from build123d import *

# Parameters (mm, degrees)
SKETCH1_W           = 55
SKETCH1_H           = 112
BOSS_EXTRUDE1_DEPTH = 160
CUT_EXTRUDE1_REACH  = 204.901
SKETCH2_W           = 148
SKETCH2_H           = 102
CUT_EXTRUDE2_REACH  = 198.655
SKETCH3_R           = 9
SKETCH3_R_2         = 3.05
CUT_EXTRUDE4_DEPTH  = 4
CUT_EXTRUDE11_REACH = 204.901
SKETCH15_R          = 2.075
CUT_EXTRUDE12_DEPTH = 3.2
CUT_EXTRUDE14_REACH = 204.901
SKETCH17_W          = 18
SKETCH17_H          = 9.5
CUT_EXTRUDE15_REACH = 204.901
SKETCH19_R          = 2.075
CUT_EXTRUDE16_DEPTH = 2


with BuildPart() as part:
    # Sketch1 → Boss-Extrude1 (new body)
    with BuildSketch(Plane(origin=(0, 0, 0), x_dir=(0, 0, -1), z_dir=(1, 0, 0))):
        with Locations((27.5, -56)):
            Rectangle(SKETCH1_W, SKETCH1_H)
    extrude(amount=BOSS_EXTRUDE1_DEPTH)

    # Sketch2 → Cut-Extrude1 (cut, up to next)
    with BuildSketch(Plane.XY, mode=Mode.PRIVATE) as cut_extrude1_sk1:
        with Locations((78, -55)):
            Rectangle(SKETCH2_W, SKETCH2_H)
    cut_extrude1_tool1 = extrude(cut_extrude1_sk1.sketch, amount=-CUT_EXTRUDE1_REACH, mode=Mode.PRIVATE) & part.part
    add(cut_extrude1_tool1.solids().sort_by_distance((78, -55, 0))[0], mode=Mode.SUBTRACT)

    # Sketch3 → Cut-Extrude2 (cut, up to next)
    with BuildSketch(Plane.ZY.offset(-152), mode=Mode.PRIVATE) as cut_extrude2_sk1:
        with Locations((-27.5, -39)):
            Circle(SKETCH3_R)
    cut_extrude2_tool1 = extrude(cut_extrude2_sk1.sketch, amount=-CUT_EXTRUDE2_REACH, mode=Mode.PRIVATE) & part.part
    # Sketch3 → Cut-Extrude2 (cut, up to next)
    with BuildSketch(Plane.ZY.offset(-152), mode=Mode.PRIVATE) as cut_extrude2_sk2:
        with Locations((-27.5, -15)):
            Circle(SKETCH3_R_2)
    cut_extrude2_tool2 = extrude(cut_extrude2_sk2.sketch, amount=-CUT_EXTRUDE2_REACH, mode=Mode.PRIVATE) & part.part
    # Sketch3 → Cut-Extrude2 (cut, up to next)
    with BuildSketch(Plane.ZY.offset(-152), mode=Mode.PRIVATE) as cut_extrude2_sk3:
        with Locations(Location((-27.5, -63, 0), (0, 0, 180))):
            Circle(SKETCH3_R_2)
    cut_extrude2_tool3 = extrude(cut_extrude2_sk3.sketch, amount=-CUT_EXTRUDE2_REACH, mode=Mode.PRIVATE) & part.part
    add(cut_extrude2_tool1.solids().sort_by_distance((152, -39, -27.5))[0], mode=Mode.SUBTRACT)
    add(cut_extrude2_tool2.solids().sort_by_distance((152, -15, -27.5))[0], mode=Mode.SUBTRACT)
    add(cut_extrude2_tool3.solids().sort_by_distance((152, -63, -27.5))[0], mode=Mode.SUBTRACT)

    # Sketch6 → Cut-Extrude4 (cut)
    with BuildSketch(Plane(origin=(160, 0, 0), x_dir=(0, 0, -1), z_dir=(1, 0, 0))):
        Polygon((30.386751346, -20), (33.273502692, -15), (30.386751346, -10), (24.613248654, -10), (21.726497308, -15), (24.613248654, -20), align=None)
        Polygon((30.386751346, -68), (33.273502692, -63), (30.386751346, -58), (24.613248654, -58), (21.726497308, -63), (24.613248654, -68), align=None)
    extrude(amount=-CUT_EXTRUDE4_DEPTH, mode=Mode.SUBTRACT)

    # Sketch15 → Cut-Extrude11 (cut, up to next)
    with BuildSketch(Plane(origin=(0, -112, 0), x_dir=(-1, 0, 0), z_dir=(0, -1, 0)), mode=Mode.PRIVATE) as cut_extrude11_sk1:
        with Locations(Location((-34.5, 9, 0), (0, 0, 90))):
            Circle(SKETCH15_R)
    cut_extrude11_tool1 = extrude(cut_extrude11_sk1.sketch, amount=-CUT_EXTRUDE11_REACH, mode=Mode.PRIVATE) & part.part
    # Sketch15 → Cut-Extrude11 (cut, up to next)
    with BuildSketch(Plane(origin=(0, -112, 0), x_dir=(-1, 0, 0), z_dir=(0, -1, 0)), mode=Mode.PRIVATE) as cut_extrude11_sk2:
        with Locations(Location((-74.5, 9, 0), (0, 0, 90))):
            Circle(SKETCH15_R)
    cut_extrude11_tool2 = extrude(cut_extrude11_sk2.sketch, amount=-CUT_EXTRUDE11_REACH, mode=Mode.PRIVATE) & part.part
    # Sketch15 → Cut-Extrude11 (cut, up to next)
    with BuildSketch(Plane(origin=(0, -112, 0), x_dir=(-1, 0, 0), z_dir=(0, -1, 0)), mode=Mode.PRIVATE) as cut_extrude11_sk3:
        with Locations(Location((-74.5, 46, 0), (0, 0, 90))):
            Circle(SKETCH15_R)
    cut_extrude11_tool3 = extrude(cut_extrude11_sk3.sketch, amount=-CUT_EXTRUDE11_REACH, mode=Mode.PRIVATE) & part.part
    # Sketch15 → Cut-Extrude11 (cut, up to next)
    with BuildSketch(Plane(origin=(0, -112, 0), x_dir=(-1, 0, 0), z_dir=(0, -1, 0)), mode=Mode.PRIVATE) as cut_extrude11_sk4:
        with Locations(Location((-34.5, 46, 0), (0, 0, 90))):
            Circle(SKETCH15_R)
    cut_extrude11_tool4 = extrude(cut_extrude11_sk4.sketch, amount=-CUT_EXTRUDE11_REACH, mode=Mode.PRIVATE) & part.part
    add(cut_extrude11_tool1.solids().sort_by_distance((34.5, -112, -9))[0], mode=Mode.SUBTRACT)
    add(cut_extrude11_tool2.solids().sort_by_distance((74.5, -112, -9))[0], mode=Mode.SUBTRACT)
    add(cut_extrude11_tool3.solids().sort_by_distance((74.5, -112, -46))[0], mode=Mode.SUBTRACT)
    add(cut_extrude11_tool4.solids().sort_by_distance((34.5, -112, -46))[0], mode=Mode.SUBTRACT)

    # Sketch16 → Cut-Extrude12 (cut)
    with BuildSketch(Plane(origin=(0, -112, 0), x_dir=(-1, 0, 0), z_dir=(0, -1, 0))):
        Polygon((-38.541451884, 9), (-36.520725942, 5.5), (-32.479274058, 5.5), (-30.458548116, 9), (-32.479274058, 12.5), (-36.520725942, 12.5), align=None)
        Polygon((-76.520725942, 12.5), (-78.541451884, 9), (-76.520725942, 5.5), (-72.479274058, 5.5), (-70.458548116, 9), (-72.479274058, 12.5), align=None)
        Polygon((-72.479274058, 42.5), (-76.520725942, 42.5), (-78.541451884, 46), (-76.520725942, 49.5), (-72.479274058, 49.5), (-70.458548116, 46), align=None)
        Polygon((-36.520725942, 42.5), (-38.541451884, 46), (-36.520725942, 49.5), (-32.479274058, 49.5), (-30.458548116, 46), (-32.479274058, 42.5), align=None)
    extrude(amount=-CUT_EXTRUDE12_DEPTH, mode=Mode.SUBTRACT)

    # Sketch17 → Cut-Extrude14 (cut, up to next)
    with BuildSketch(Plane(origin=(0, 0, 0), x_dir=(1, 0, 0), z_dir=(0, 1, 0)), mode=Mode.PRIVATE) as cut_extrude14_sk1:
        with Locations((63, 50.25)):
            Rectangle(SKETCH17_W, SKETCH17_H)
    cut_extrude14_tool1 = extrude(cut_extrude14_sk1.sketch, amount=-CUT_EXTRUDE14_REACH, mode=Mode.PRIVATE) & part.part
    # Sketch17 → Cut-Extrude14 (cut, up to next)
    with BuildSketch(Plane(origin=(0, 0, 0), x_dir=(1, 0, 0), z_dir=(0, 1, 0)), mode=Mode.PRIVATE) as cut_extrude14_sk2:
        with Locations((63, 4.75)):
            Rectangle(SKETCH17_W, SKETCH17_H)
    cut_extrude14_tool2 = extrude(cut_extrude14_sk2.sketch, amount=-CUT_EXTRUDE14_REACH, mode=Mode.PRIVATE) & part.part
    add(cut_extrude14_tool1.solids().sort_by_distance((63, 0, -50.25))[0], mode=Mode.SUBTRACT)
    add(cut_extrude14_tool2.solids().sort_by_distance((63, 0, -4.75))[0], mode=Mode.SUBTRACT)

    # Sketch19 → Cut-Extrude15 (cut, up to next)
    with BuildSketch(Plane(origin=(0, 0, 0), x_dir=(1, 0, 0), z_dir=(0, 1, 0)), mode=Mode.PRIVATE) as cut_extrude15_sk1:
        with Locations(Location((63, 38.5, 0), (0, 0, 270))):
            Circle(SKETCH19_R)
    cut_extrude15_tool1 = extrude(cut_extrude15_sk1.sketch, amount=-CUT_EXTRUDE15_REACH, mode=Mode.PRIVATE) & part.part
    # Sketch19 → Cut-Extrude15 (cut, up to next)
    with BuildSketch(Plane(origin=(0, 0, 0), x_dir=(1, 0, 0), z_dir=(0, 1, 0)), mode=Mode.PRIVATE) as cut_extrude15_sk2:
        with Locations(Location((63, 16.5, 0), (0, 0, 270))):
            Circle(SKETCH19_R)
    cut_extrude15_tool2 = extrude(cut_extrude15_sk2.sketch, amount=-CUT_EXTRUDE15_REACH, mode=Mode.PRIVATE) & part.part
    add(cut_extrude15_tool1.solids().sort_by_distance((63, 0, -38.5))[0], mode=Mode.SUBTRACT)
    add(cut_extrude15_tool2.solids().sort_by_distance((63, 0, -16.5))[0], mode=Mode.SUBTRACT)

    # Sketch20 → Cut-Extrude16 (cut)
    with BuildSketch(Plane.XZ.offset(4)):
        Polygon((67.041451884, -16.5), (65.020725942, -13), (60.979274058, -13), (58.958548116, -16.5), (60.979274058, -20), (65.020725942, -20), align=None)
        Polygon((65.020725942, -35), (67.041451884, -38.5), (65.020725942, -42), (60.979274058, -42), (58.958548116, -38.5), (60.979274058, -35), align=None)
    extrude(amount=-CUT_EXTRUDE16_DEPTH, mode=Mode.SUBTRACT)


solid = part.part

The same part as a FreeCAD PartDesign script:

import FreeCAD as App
import Part
import Sketcher

V = App.Vector
Q = App.Units.Quantity


def add_polygon(sketch, points):
    """Adds a closed chain of lines whose ends are joined by coincident constraints."""
    first, n = sketch.GeometryCount, len(points)
    for a, b in zip(points, points[1:] + points[:1]):
        sketch.addGeometry(Part.LineSegment(App.Vector(*a, 0), App.Vector(*b, 0)), False)
    for i in range(n):
        sketch.addConstraint(Sketcher.Constraint("Coincident", first + i, 2, first + (i + 1) % n, 1))

doc = App.newDocument("Part")
params = doc.addObject("Spreadsheet::Sheet", "Params")
for row, (alias, value) in enumerate([
    ("sketch1_width", "112 mm"),
    ("sketch1_height", "55 mm"),
    ("pad1_length", "160 mm"),
    ("sketch2_width", "148 mm"),
    ("sketch2_height", "102 mm"),
    ("sketch3_diameter", "18 mm"),
    ("sketch4_diameter", "6.1 mm"),
    ("sketch5_diameter", "6.1 mm"),
    ("pocket5_length", "4 mm"),
    ("sketch7_diameter", "4.15 mm"),
    ("sketch8_diameter", "4.15 mm"),
    ("sketch9_diameter", "4.15 mm"),
    ("sketch10_diameter", "4.15 mm"),
    ("pocket10_length", "3.2 mm"),
    ("sketch12_width", "18 mm"),
    ("sketch12_height", "9.5 mm"),
    ("sketch13_width", "18 mm"),
    ("sketch13_height", "9.5 mm"),
    ("sketch14_diameter", "4.15 mm"),
    ("sketch15_diameter", "4.15 mm"),
    ("pocket15_length", "2 mm"),
], start=1):
    params.set(f"A{row}", alias)
    params.set(f"B{row}", "=" + value)
    params.setAlias(f"B{row}", alias)

body = doc.addObject("PartDesign::Body", "Body")

sketch1 = body.newObject("Sketcher::SketchObject", "Sketch")
sketch1.AttachmentSupport = (doc.getObject("YZ_Plane"), [""])
sketch1.MapMode = "FlatFace"
add_polygon(sketch1, [(0, 0), (-112, 0), (-112, -55), (0, -55)])
sketch1.addConstraint([
    Sketcher.Constraint("Horizontal", 0),
    Sketcher.Constraint("Vertical", 1),
    Sketcher.Constraint("Horizontal", 2),
    Sketcher.Constraint("Vertical", 3),
    Sketcher.Constraint("Coincident", 3, 2, -1, 1),
    Sketcher.Constraint("DistanceX", 0, 2, 0, 1, Q("112 mm")),
    Sketcher.Constraint("DistanceY", 1, 2, 1, 1, Q("55 mm")),
])
sketch1.setExpression("Constraints[9]", "Params.sketch1_width")
sketch1.setExpression("Constraints[10]", "Params.sketch1_height")
pad1 = body.newObject("PartDesign::Pad", "Pad")
pad1.Profile = sketch1
pad1.setExpression("Length", "Params.pad1_length")

sketch2 = body.newObject("Sketcher::SketchObject", "Sketch001")
sketch2.AttachmentSupport = (doc.getObject("XY_Plane"), [""])
sketch2.MapMode = "FlatFace"
add_polygon(sketch2, [(4, -4), (4, -106), (152, -106), (152, -4)])
sketch2.addConstraint([
    Sketcher.Constraint("Vertical", 0),
    Sketcher.Constraint("Horizontal", 1),
    Sketcher.Constraint("Vertical", 2),
    Sketcher.Constraint("Horizontal", 3),
    Sketcher.Constraint("DistanceX", 1, 1, 1, 2, Q("148 mm")),
    Sketcher.Constraint("DistanceY", 0, 2, 0, 1, Q("102 mm")),
    Sketcher.Constraint("DistanceX", -1, 1, 0, 2, Q("4 mm")),
    Sketcher.Constraint("DistanceY", 0, 2, -1, 1, Q("106 mm")),
])
sketch2.setExpression("Constraints[8]", "Params.sketch2_width")
sketch2.setExpression("Constraints[9]", "Params.sketch2_height")
pocket1 = body.newObject("PartDesign::Pocket", "Pocket")
pocket1.Profile = sketch2
pocket1.Type = "UpToFirst"

sketch3 = body.newObject("Sketcher::SketchObject", "Sketch002")
sketch3.AttachmentSupport = (doc.getObject("YZ_Plane"), [""])
sketch3.MapMode = "FlatFace"
sketch3.AttachmentOffset = App.Placement(V(0, 0, 152), App.Rotation())
sketch3.addGeometry(Part.Circle(V(-39, -28, 0), V(0, 0, 1), 9), False)
sketch3.addConstraint([
    Sketcher.Constraint("Diameter", 0, Q("18 mm")),
    Sketcher.Constraint("DistanceX", 0, 3, -1, 1, Q("39 mm")),
    Sketcher.Constraint("DistanceY", 0, 3, -1, 1, Q("27.5 mm")),
])
sketch3.setExpression("Constraints[0]", "Params.sketch3_diameter")
pocket2 = body.newObject("PartDesign::Pocket", "Pocket001")
pocket2.Profile = sketch3
pocket2.Type = "UpToFirst"
pocket2.Reversed = True

sketch4 = body.newObject("Sketcher::SketchObject", "Sketch003")
sketch4.AttachmentSupport = (doc.getObject("YZ_Plane"), [""])
sketch4.MapMode = "FlatFace"
sketch4.AttachmentOffset = App.Placement(V(0, 0, 152), App.Rotation())
sketch4.addGeometry(Part.Circle(V(-15, -27.5, 0), V(0, 0, 1), 3), False)
sketch4.addConstraint([
    Sketcher.Constraint("Diameter", 0, Q("6.1 mm")),
    Sketcher.Constraint("DistanceX", 0, 3, -1, 1, Q("15 mm")),
    Sketcher.Constraint("DistanceY", 0, 3, -1, 1, Q("27.5 mm")),
])
sketch4.setExpression("Constraints[0]", "Params.sketch4_diameter")
pocket3 = body.newObject("PartDesign::Pocket", "Pocket002")
pocket3.Profile = sketch4
pocket3.Type = "UpToFirst"
pocket3.Reversed = True

sketch5 = body.newObject("Sketcher::SketchObject", "Sketch004")
sketch5.AttachmentSupport = (doc.getObject("YZ_Plane"), [""])
sketch5.MapMode = "FlatFace"
sketch5.AttachmentOffset = App.Placement(V(0, 0, 152), App.Rotation())
sketch5.addGeometry(Part.Circle(V(-63, -27.5, 0), V(0, 0, 1), 3), False)
sketch5.addConstraint([
    Sketcher.Constraint("Diameter", 0, Q("6.1 mm")),
    Sketcher.Constraint("DistanceX", 0, 3, -1, 1, Q("63 mm")),
    Sketcher.Constraint("DistanceY", 0, 3, -1, 1, Q("27.5 mm")),
])
sketch5.setExpression("Constraints[0]", "Params.sketch5_diameter")
pocket4 = body.newObject("PartDesign::Pocket", "Pocket003")
pocket4.Profile = sketch5
pocket4.Type = "UpToFirst"
pocket4.Reversed = True

sketch6 = body.newObject("Sketcher::SketchObject", "Sketch005")
sketch6.AttachmentSupport = (doc.getObject("YZ_Plane"), [""])
sketch6.MapMode = "FlatFace"
sketch6.AttachmentOffset = App.Placement(V(0, 0, 160), App.Rotation())
add_polygon(sketch6, [(-20, -30), (-15, -33), (-10, -30), (-10, -25), (-15, -22), (-20, -25)])
add_polygon(sketch6, [(-68, -30), (-63, -33), (-58, -30), (-58, -25), (-63, -22), (-68, -25)])
sketch6.addConstraint([
    Sketcher.Constraint("Vertical", 2),
    Sketcher.Constraint("Vertical", 5),
    Sketcher.Constraint("Vertical", 8),
    Sketcher.Constraint("Vertical", 11),
    Sketcher.Constraint("Parallel", 0, 3),
    Sketcher.Constraint("Parallel", 1, 4),
    Sketcher.Constraint("Parallel", 3, 6),
    Sketcher.Constraint("Parallel", 4, 7),
    Sketcher.Constraint("Parallel", 6, 9),
    Sketcher.Constraint("Parallel", 7, 10),
    Sketcher.Constraint("Horizontal", 2, 2, 4, 2),
    Sketcher.Constraint("Horizontal", 1, 2, 5, 2),
    Sketcher.Constraint("Horizontal", 0, 2, 6, 2),
    Sketcher.Constraint("Horizontal", 5, 2, 7, 2),
    Sketcher.Constraint("Horizontal", 4, 2, 8, 2),
    Sketcher.Constraint("Horizontal", 3, 2, 9, 2),
    Sketcher.Constraint("Horizontal", 8, 2, 10, 2),
    Sketcher.Constraint("Vertical", 0, 2, 3, 2),
    Sketcher.Constraint("Angle", 0, Q("-30 deg")),
    Sketcher.Constraint("DistanceX", 0, 2, -1, 1, Q("15 mm")),
    Sketcher.Constraint("DistanceX", 1, 2, -1, 1, Q("10 mm")),
    Sketcher.Constraint("DistanceX", 6, 2, -1, 1, Q("63 mm")),
    Sketcher.Constraint("DistanceY", 2, 1, 2, 2, Q("5.773503 mm")),
    Sketcher.Constraint("DistanceY", 1, 2, -1, 1, Q("30.386751 mm")),
])
pocket5 = body.newObject("PartDesign::Pocket", "Pocket004")
pocket5.Profile = sketch6
pocket5.setExpression("Length", "Params.pocket5_length")

sketch7 = body.newObject("Sketcher::SketchObject", "Sketch006")
sketch7.AttachmentSupport = (doc.getObject("XZ_Plane"), [""])
sketch7.MapMode = "FlatFace"
sketch7.AttachmentOffset = App.Placement(V(0, 0, 112), App.Rotation())
sketch7.addGeometry(Part.Circle(V(34.5, -9, 0), V(0, 0, 1), 2.1), False)
sketch7.addConstraint([
    Sketcher.Constraint("Diameter", 0, Q("4.15 mm")),
    Sketcher.Constraint("DistanceY", 0, 3, -1, 1, Q("9 mm")),
    Sketcher.Constraint("DistanceX", -1, 1, 0, 3, Q("34.5 mm")),
])
sketch7.setExpression("Constraints[0]", "Params.sketch7_diameter")
pocket6 = body.newObject("PartDesign::Pocket", "Pocket005")
pocket6.Profile = sketch7
pocket6.Type = "UpToFirst"

sketch8 = body.newObject("Sketcher::SketchObject", "Sketch007")
sketch8.AttachmentSupport = (doc.getObject("XZ_Plane"), [""])
sketch8.MapMode = "FlatFace"
sketch8.AttachmentOffset = App.Placement(V(0, 0, 112), App.Rotation())
sketch8.addGeometry(Part.Circle(V(74.5, -9, 0), V(0, 0, 1), 2.1), False)
sketch8.addConstraint([
    Sketcher.Constraint("Diameter", 0, Q("4.15 mm")),
    Sketcher.Constraint("DistanceY", 0, 3, -1, 1, Q("9 mm")),
    Sketcher.Constraint("DistanceX", -1, 1, 0, 3, Q("74.5 mm")),
])
sketch8.setExpression("Constraints[0]", "Params.sketch8_diameter")
pocket7 = body.newObject("PartDesign::Pocket", "Pocket006")
pocket7.Profile = sketch8
pocket7.Type = "UpToFirst"

sketch9 = body.newObject("Sketcher::SketchObject", "Sketch008")
sketch9.AttachmentSupport = (doc.getObject("XZ_Plane"), [""])
sketch9.MapMode = "FlatFace"
sketch9.AttachmentOffset = App.Placement(V(0, 0, 112), App.Rotation())
sketch9.addGeometry(Part.Circle(V(74.5, -46, 0), V(0, 0, 1), 2.1), False)
sketch9.addConstraint([
    Sketcher.Constraint("Diameter", 0, Q("4.15 mm")),
    Sketcher.Constraint("DistanceY", 0, 3, -1, 1, Q("46 mm")),
    Sketcher.Constraint("DistanceX", -1, 1, 0, 3, Q("74.5 mm")),
])
sketch9.setExpression("Constraints[0]", "Params.sketch9_diameter")
pocket8 = body.newObject("PartDesign::Pocket", "Pocket007")
pocket8.Profile = sketch9
pocket8.Type = "UpToFirst"

sketch10 = body.newObject("Sketcher::SketchObject", "Sketch009")
sketch10.AttachmentSupport = (doc.getObject("XZ_Plane"), [""])
sketch10.MapMode = "FlatFace"
sketch10.AttachmentOffset = App.Placement(V(0, 0, 112), App.Rotation())
sketch10.addGeometry(Part.Circle(V(34.5, -46, 0), V(0, 0, 1), 2.1), False)
sketch10.addConstraint([
    Sketcher.Constraint("Diameter", 0, Q("4.15 mm")),
    Sketcher.Constraint("DistanceY", 0, 3, -1, 1, Q("46 mm")),
    Sketcher.Constraint("DistanceX", -1, 1, 0, 3, Q("34.5 mm")),
])
sketch10.setExpression("Constraints[0]", "Params.sketch10_diameter")
pocket9 = body.newObject("PartDesign::Pocket", "Pocket008")
pocket9.Profile = sketch10
pocket9.Type = "UpToFirst"

sketch11 = body.newObject("Sketcher::SketchObject", "Sketch010")
sketch11.AttachmentSupport = (doc.getObject("XZ_Plane"), [""])
sketch11.MapMode = "FlatFace"
sketch11.AttachmentOffset = App.Placement(V(0, 0, 112), App.Rotation())
add_polygon(sketch11, [(38.5, -9), (36.5, -5.5), (32.5, -5.5), (30.5, -9), (32.5, -12.5), (36.5, -12.5)])
add_polygon(sketch11, [(76.5, -12.5), (78.5, -9), (76.5, -5.5), (72.5, -5.5), (70.5, -9), (72.5, -12.5)])
add_polygon(sketch11, [(76.5, -42.5), (72.5, -42.5), (70.5, -46), (72.5, -49.5), (76.5, -49.5), (78.5, -46)])
add_polygon(sketch11, [(38.5, -46), (36.5, -42.5), (32.5, -42.5), (30.5, -46), (32.5, -49.5), (36.5, -49.5)])
sketch11.addConstraint([
    Sketcher.Constraint("Horizontal", 1),
    Sketcher.Constraint("Horizontal", 4),
    Sketcher.Constraint("Horizontal", 8),
    Sketcher.Constraint("Horizontal", 11),
    Sketcher.Constraint("Horizontal", 12),
    Sketcher.Constraint("Horizontal", 15),
    Sketcher.Constraint("Horizontal", 19),
    Sketcher.Constraint("Horizontal", 22),
    Sketcher.Constraint("Parallel", 0, 3),
    Sketcher.Constraint("Parallel", 2, 5),
    Sketcher.Constraint("Parallel", 5, 6),
    Sketcher.Constraint("Parallel", 3, 7),
    Sketcher.Constraint("Parallel", 6, 9),
    Sketcher.Constraint("Parallel", 7, 10),
    Sketcher.Constraint("Parallel", 9, 13),
    Sketcher.Constraint("Parallel", 10, 14),
    Sketcher.Constraint("Parallel", 13, 16),
    Sketcher.Constraint("Parallel", 14, 17),
    Sketcher.Constraint("Parallel", 17, 18),
    Sketcher.Constraint("Parallel", 16, 20),
    Sketcher.Constraint("Parallel", 18, 21),
    Sketcher.Constraint("Parallel", 20, 23),
    Sketcher.Constraint("Horizontal", 2, 2, 5, 2),
    Sketcher.Constraint("Horizontal", 5, 2, 6, 2),
    Sketcher.Constraint("Horizontal", 1, 2, 7, 2),
    Sketcher.Constraint("Horizontal", 6, 2, 9, 2),
    Sketcher.Constraint("Horizontal", 4, 2, 10, 2),
    Sketcher.Constraint("Horizontal", 13, 2, 16, 2),
    Sketcher.Constraint("Horizontal", 17, 2, 18, 2),
    Sketcher.Constraint("Horizontal", 16, 2, 20, 2),
    Sketcher.Constraint("Horizontal", 15, 2, 21, 2),
    Sketcher.Constraint("Horizontal", 20, 2, 23, 2),
    Sketcher.Constraint("Vertical", 1, 2, 3, 2),
    Sketcher.Constraint("Vertical", 0, 2, 4, 2),
    Sketcher.Constraint("Vertical", 10, 2, 12, 2),
    Sketcher.Constraint("Vertical", 9, 2, 13, 2),
    Sketcher.Constraint("Vertical", 12, 2, 14, 2),
    Sketcher.Constraint("Vertical", 11, 2, 15, 2),
    Sketcher.Constraint("Vertical", 4, 2, 18, 2),
    Sketcher.Constraint("Vertical", 3, 2, 19, 2),
    Sketcher.Constraint("Equal", 4, 8),
    Sketcher.Constraint("Angle", 0, Q("120 deg")),
    Sketcher.Constraint("DistanceY", 2, 2, -1, 1, Q("9 mm")),
    Sketcher.Constraint("DistanceY", 13, 2, -1, 1, Q("46 mm")),
    Sketcher.Constraint("DistanceY", 3, 2, 1, 2, Q("7 mm")),
    Sketcher.Constraint("DistanceX", 5, 2, 6, 2, Q("40 mm")),
    Sketcher.Constraint("DistanceX", 1, 2, 1, 1, Q("4.041452 mm")),
    Sketcher.Constraint("DistanceX", -1, 1, 2, 2, Q("30.458548 mm")),
])
pocket10 = body.newObject("PartDesign::Pocket", "Pocket009")
pocket10.Profile = sketch11
pocket10.setExpression("Length", "Params.pocket10_length")

sketch12 = body.newObject("Sketcher::SketchObject", "Sketch011")
sketch12.AttachmentSupport = (doc.getObject("XZ_Plane"), [""])
sketch12.MapMode = "FlatFace"
add_polygon(sketch12, [(54, -55), (54, -46), (72, -46), (72, -55)])
sketch12.addConstraint([
    Sketcher.Constraint("Vertical", 0),
    Sketcher.Constraint("Horizontal", 1),
    Sketcher.Constraint("Vertical", 2),
    Sketcher.Constraint("Horizontal", 3),
    Sketcher.Constraint("DistanceX", 1, 1, 1, 2, Q("18 mm")),
    Sketcher.Constraint("DistanceY", 0, 1, 0, 2, Q("9.5 mm")),
    Sketcher.Constraint("DistanceX", -1, 1, 0, 2, Q("54 mm")),
    Sketcher.Constraint("DistanceY", 2, 2, -1, 1, Q("55 mm")),
])
sketch12.setExpression("Constraints[8]", "Params.sketch12_width")
sketch12.setExpression("Constraints[9]", "Params.sketch12_height")
pocket11 = body.newObject("PartDesign::Pocket", "Pocket010")
pocket11.Profile = sketch12
pocket11.Type = "UpToFirst"
pocket11.Reversed = True

sketch13 = body.newObject("Sketcher::SketchObject", "Sketch012")
sketch13.AttachmentSupport = (doc.getObject("XZ_Plane"), [""])
sketch13.MapMode = "FlatFace"
add_polygon(sketch13, [(54, -10), (54, 0), (72, 0), (72, -10)])
sketch13.addConstraint([
    Sketcher.Constraint("Vertical", 0),
    Sketcher.Constraint("Horizontal", 1),
    Sketcher.Constraint("Vertical", 2),
    Sketcher.Constraint("Horizontal", 3),
    Sketcher.Constraint("PointOnObject", 0, 2, -1),
    Sketcher.Constraint("DistanceX", 1, 1, 1, 2, Q("18 mm")),
    Sketcher.Constraint("DistanceY", 0, 1, 0, 2, Q("9.5 mm")),
    Sketcher.Constraint("DistanceX", -1, 1, 0, 2, Q("54 mm")),
])
sketch13.setExpression("Constraints[9]", "Params.sketch13_width")
sketch13.setExpression("Constraints[10]", "Params.sketch13_height")
pocket12 = body.newObject("PartDesign::Pocket", "Pocket011")
pocket12.Profile = sketch13
pocket12.Type = "UpToFirst"
pocket12.Reversed = True

sketch14 = body.newObject("Sketcher::SketchObject", "Sketch013")
sketch14.AttachmentSupport = (doc.getObject("XZ_Plane"), [""])
sketch14.MapMode = "FlatFace"
sketch14.addGeometry(Part.Circle(V(63, -38.5, 0), V(0, 0, 1), 2.1), False)
sketch14.addConstraint([
    Sketcher.Constraint("Diameter", 0, Q("4.15 mm")),
    Sketcher.Constraint("DistanceX", -1, 1, 0, 3, Q("63 mm")),
    Sketcher.Constraint("DistanceY", 0, 3, -1, 1, Q("38.5 mm")),
])
sketch14.setExpression("Constraints[0]", "Params.sketch14_diameter")
pocket13 = body.newObject("PartDesign::Pocket", "Pocket012")
pocket13.Profile = sketch14
pocket13.Type = "UpToFirst"
pocket13.Reversed = True

sketch15 = body.newObject("Sketcher::SketchObject", "Sketch014")
sketch15.AttachmentSupport = (doc.getObject("XZ_Plane"), [""])
sketch15.MapMode = "FlatFace"
sketch15.addGeometry(Part.Circle(V(63, -16.5, 0), V(0, 0, 1), 2.1), False)
sketch15.addConstraint([
    Sketcher.Constraint("Diameter", 0, Q("4.15 mm")),
    Sketcher.Constraint("DistanceX", -1, 1, 0, 3, Q("63 mm")),
    Sketcher.Constraint("DistanceY", 0, 3, -1, 1, Q("16.5 mm")),
])
sketch15.setExpression("Constraints[0]", "Params.sketch15_diameter")
pocket14 = body.newObject("PartDesign::Pocket", "Pocket013")
pocket14.Profile = sketch15
pocket14.Type = "UpToFirst"
pocket14.Reversed = True

sketch16 = body.newObject("Sketcher::SketchObject", "Sketch015")
sketch16.AttachmentSupport = (doc.getObject("XZ_Plane"), [""])
sketch16.MapMode = "FlatFace"
sketch16.AttachmentOffset = App.Placement(V(0, 0, 4), App.Rotation())
add_polygon(sketch16, [(67, -16.5), (65, -13), (61, -13), (59, -16.5), (61, -20), (65, -20)])
add_polygon(sketch16, [(67, -38.5), (65, -35), (61, -35), (59, -38.5), (61, -42), (65, -42)])
sketch16.addConstraint([
    Sketcher.Constraint("Horizontal", 1),
    Sketcher.Constraint("Horizontal", 4),
    Sketcher.Constraint("Horizontal", 7),
    Sketcher.Constraint("Horizontal", 10),
    Sketcher.Constraint("Parallel", 0, 3),
    Sketcher.Constraint("Parallel", 2, 5),
    Sketcher.Constraint("Parallel", 3, 6),
    Sketcher.Constraint("Parallel", 5, 8),
    Sketcher.Constraint("Parallel", 6, 9),
    Sketcher.Constraint("Parallel", 8, 11),
    Sketcher.Constraint("Horizontal", 2, 2, 5, 2),
    Sketcher.Constraint("Horizontal", 8, 2, 11, 2),
    Sketcher.Constraint("Vertical", 1, 2, 3, 2),
    Sketcher.Constraint("Vertical", 0, 2, 4, 2),
    Sketcher.Constraint("Vertical", 4, 2, 6, 2),
    Sketcher.Constraint("Vertical", 3, 2, 7, 2),
    Sketcher.Constraint("Vertical", 2, 2, 8, 2),
    Sketcher.Constraint("Vertical", 7, 2, 9, 2),
    Sketcher.Constraint("Angle", 0, Q("120 deg")),
    Sketcher.Constraint("DistanceY", 0, 2, -1, 1, Q("13 mm")),
    Sketcher.Constraint("DistanceY", 3, 2, -1, 1, Q("20 mm")),
    Sketcher.Constraint("DistanceY", 6, 2, -1, 1, Q("35 mm")),
    Sketcher.Constraint("DistanceX", 1, 2, 1, 1, Q("4.041452 mm")),
    Sketcher.Constraint("DistanceX", -1, 1, 2, 2, Q("58.958548 mm")),
])
pocket15 = body.newObject("PartDesign::Pocket", "Pocket014")
pocket15.Profile = sketch16
pocket15.setExpression("Length", "Params.pocket15_length")

doc.recompute()
